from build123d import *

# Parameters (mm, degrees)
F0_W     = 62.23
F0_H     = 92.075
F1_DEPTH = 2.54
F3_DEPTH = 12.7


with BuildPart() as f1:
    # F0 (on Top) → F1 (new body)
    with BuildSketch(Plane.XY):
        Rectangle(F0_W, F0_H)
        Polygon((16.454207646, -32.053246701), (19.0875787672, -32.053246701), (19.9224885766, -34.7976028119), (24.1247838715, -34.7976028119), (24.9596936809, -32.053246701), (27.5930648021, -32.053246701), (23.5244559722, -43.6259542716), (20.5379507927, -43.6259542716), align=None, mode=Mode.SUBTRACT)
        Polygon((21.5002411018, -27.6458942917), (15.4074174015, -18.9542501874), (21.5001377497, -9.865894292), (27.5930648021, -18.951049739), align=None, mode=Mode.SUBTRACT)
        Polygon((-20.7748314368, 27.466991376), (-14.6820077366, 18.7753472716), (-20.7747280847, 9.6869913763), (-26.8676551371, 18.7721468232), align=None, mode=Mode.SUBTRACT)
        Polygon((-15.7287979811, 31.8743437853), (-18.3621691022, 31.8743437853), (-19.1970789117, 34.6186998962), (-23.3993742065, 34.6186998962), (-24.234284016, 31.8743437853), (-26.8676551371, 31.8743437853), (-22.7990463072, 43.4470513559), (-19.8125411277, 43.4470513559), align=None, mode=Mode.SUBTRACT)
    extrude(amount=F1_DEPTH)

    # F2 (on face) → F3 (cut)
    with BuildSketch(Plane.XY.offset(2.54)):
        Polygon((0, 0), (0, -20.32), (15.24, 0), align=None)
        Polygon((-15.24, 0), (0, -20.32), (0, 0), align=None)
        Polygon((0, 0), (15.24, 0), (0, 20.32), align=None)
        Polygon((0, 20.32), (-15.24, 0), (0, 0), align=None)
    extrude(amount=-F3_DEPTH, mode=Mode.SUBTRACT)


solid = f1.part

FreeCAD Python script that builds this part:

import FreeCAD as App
import Part
import Sketcher

V = App.Vector
Q = App.Units.Quantity

doc = App.newDocument("Part")
body = doc.addObject("PartDesign::Body", "Body")

sketch1 = body.newObject("Sketcher::SketchObject", "Sketch")
sketch1.AttachmentSupport = (doc.getObject("XY_Plane"), [""])
sketch1.MapMode = "FlatFace"
sketch1.addGeometry([
    Part.LineSegment(V(-31.1, 46, 0), V(-31.1, -46, 0)),
    Part.LineSegment(V(-31.1, -46, 0), V(31.1, -46, 0)),
    Part.LineSegment(V(31.1, -46, 0), V(31.1, 46, 0)),
    Part.LineSegment(V(31.1, 46, 0), V(-31.1, 46, 0)),
    Part.LineSegment(V(20.5, -43.6, 0), V(16.5, -32.1, 0)),
    Part.LineSegment(V(16.5, -32.1, 0), V(19.1, -32.1, 0)),
    Part.LineSegment(V(19.1, -32.1, 0), V(19.9, -34.8, 0)),
    Part.LineSegment(V(19.9, -34.8, 0), V(24.1, -34.8, 0)),
    Part.LineSegment(V(24.1, -34.8, 0), V(25, -32.1, 0)),
    Part.LineSegment(V(25, -32.1, 0), V(27.6, -32.1, 0)),
    Part.LineSegment(V(27.6, -32.1, 0), V(23.5, -43.6, 0)),
    Part.LineSegment(V(23.5, -43.6, 0), V(20.5, -43.6, 0)),
    Part.LineSegment(V(27.6, -19, 0), V(21.5, -27.6, 0)),
    Part.LineSegment(V(21.5, -27.6, 0), V(15.4, -19, 0)),
    Part.LineSegment(V(15.4, -19, 0), V(21.5, -9.9, 0)),
    Part.LineSegment(V(21.5, -9.9, 0), V(27.6, -19, 0)),
    Part.LineSegment(V(-26.9, 18.8, 0), V(-20.8, 27.5, 0)),
    Part.LineSegment(V(-20.8, 27.5, 0), V(-14.7, 18.8, 0)),
    Part.LineSegment(V(-14.7, 18.8, 0), V(-20.8, 9.7, 0)),
    Part.LineSegment(V(-20.8, 9.7, 0), V(-26.9, 18.8, 0)),
    Part.LineSegment(V(-19.8, 43.4, 0), V(-15.7, 31.9, 0)),
    Part.LineSegment(V(-15.7, 31.9, 0), V(-18.4, 31.9, 0)),
    Part.LineSegment(V(-18.4, 31.9, 0), V(-19.2, 34.6, 0)),
    Part.LineSegment(V(-19.2, 34.6, 0), V(-23.4, 34.6, 0)),
    Part.LineSegment(V(-23.4, 34.6, 0), V(-24.2, 31.9, 0)),
    Part.LineSegment(V(-24.2, 31.9, 0), V(-26.9, 31.9, 0)),
    Part.LineSegment(V(-26.9, 31.9, 0), V(-22.8, 43.4, 0)),
    Part.LineSegment(V(-22.8, 43.4, 0), V(-19.8, 43.4, 0)),
], False)
sketch1.addConstraint([
    Sketcher.Constraint("Coincident", 0, 2, 1, 1),
    Sketcher.Constraint("Coincident", 1, 2, 2, 1),
    Sketcher.Constraint("Coincident", 2, 2, 3, 1),
    Sketcher.Constraint("Coincident", 3, 2, 0, 1),
    Sketcher.Constraint("Coincident", 4, 2, 5, 1),
    Sketcher.Constraint("Coincident", 5, 2, 6, 1),
    Sketcher.Constraint("Coincident", 6, 2, 7, 1),
    Sketcher.Constraint("Coincident", 7, 2, 8, 1),
    Sketcher.Constraint("Coincident", 8, 2, 9, 1),
    Sketcher.Constraint("Coincident", 9, 2, 10, 1),
    Sketcher.Constraint("Coincident", 10, 2, 11, 1),
    Sketcher.Constraint("Coincident", 11, 2, 4, 1),
    Sketcher.Constraint("Coincident", 12, 2, 13, 1),
    Sketcher.Constraint("Coincident", 13, 2, 14, 1),
    Sketcher.Constraint("Coincident", 14, 2, 15, 1),
    Sketcher.Constraint("Coincident", 15, 2, 12, 1),
    Sketcher.Constraint("Coincident", 16, 2, 17, 1),
    Sketcher.Constraint("Coincident", 17, 2, 18, 1),
    Sketcher.Constraint("Coincident", 18, 2, 19, 1),
    Sketcher.Constraint("Coincident", 19, 2, 16, 1),
    Sketcher.Constraint("Coincident", 20, 2, 21, 1),
    Sketcher.Constraint("Coincident", 21, 2, 22, 1),
    Sketcher.Constraint("Coincident", 22, 2, 23, 1),
    Sketcher.Constraint("Coincident", 23, 2, 24, 1),
    Sketcher.Constraint("Coincident", 24, 2, 25, 1),
    Sketcher.Constraint("Coincident", 25, 2, 26, 1),
    Sketcher.Constraint("Coincident", 26, 2, 27, 1),
    Sketcher.Constraint("Coincident", 27, 2, 20, 1),
    Sketcher.Constraint("Vertical", 0),
    Sketcher.Constraint("Horizontal", 1),
    Sketcher.Constraint("Vertical", 2),
    Sketcher.Constraint("Horizontal", 3),
    Sketcher.Constraint("Horizontal", 5),
    Sketcher.Constraint("Horizontal", 7),
    Sketcher.Constraint("Horizontal", 9),
    Sketcher.Constraint("Horizontal", 11),
    Sketcher.Constraint("Horizontal", 21),
    Sketcher.Constraint("Horizontal", 23),
    Sketcher.Constraint("Horizontal", 25),
    Sketcher.Constraint("Horizontal", 27),
    Sketcher.Constraint("Symmetric", 0, 2, 2, 2, -1, 1),
    Sketcher.Constraint("Parallel", 12, 16),
    Sketcher.Constraint("Parallel", 13, 17),
    Sketcher.Constraint("Parallel", 14, 18),
    Sketcher.Constraint("Parallel", 15, 19),
    Sketcher.Constraint("Parallel", 4, 20),
    Sketcher.Constraint("Parallel", 6, 22),
    Sketcher.Constraint("Parallel", 8, 24),
    Sketcher.Constraint("Parallel", 10, 26),
    Sketcher.Constraint("Horizontal", 5, 2, 8, 2),
    Sketcher.Constraint("Horizontal", 21, 2, 24, 2),
    Sketcher.Constraint("Vertical", 9, 2, 15, 2),
    Sketcher.Constraint("Vertical", 19, 2, 25, 2),
    Sketcher.Constraint("Equal", 5, 9),
    Sketcher.Constraint("Equal", 9, 21),
    Sketcher.Constraint("Equal", 7, 23),
    Sketcher.Constraint("Equal", 21, 25),
    Sketcher.Constraint("Equal", 11, 27),
    Sketcher.Constraint("Equal", 6, 8),
    Sketcher.Constraint("Equal", 12, 16),
    Sketcher.Constraint("Equal", 13, 17),
    Sketcher.Constraint("Equal", 4, 20),
    Sketcher.Constraint("DistanceX", 1, 1, 1, 2, Q("2.45 in")),
    Sketcher.Constraint("DistanceY", 12, 2, 14, 2, Q("0.7 in")),
    Sketcher.Constraint("DistanceY", 0, 2, 0, 1, Q("3.625 in")),
    Sketcher.Constraint("Distance", 12, Q("10.6171 mm")),
    Sketcher.Constraint("DistanceX", 5, 1, 5, 2, Q("2.633371 mm")),
    Sketcher.Constraint("DistanceY", -1, 1, 22, 2, Q("34.6187 mm")),
    Sketcher.Constraint("DistanceY", 13, 2, 15, 2, Q("0.0032 mm")),
    Sketcher.Constraint("Distance", 13, Q("10.61448 mm")),
    Sketcher.Constraint("Distance", 14, Q("10.941639 mm")),
    Sketcher.Constraint("DistanceX", 7, 1, 7, 2, Q("4.202295 mm")),
    Sketcher.Constraint("DistanceX", 11, 2, 11, 1, Q("2.986505 mm")),
    Sketcher.Constraint("DistanceX", -1, 1, 5, 2, Q("19.087579 mm")),
    Sketcher.Constraint("DistanceX", -1, 1, 6, 2, Q("19.922489 mm")),
    Sketcher.Constraint("DistanceX", -1, 1, 11, 2, Q("20.537951 mm")),
    Sketcher.Constraint("DistanceX", -1, 1, 12, 2, Q("21.500241 mm")),
    Sketcher.Constraint("DistanceY", 13, 2, -1, 1, Q("18.95425 mm")),
    Sketcher.Constraint("DistanceX", 16, 2, -1, 1, Q("20.774831 mm")),
    Sketcher.Constraint("DistanceY", -1, 1, 16, 2, Q("27.466991 mm")),
    Sketcher.Constraint("DistanceY", -1, 1, 26, 2, Q("43.447051 mm")),
    Sketcher.Constraint("DistanceY", 6, 2, 12, 2, Q("7.151709 mm")),
    Sketcher.Constraint("Distance", 4, Q("12.272103 mm")),
])
pad1 = body.newObject("PartDesign::Pad", "Pad")
pad1.Profile = sketch1
pad1.Length = Q("0.1 in")

sketch2 = body.newObject("Sketcher::SketchObject", "Sketch001")
sketch2.AttachmentSupport = (doc.getObject("XY_Plane"), [""])
sketch2.MapMode = "FlatFace"
sketch2.AttachmentOffset = App.Placement(V(0, 0, 0.1 * 25.4), App.Rotation())
sketch2.addGeometry([
    Part.LineSegment(V(0, -20, 0), V(15, 0, 0)),
    Part.LineSegment(V(15, 0, 0), V(0, 20, 0)),
    Part.LineSegment(V(0, 20, 0), V(-15, 0, 0)),
    Part.LineSegment(V(-15, 0, 0), V(0, -20, 0)),
], False)
sketch2.addConstraint([
    Sketcher.Constraint("Coincident", 0, 2, 1, 1),
    Sketcher.Constraint("Coincident", 1, 2, 2, 1),
    Sketcher.Constraint("Coincident", 2, 2, 3, 1),
    Sketcher.Constraint("Coincident", 3, 2, 0, 1),
    Sketcher.Constraint("Symmetric", 0, 2, 2, 2, -1, 1),
    Sketcher.Constraint("Symmetric", 1, 2, 3, 2, -1, 1),
    Sketcher.Constraint("PointOnObject", 0, 2, -1),
    Sketcher.Constraint("PointOnObject", 1, 2, -2),
    Sketcher.Constraint("Distance", 0, Q("1 in")),
    Sketcher.Constraint("DistanceX", -1, 1, 0, 2, Q("0.6 in")),
])
pocket1 = body.newObject("PartDesign::Pocket", "Pocket")
pocket1.Profile = sketch2
pocket1.Length = Q("0.5 in")

doc.recompute()
